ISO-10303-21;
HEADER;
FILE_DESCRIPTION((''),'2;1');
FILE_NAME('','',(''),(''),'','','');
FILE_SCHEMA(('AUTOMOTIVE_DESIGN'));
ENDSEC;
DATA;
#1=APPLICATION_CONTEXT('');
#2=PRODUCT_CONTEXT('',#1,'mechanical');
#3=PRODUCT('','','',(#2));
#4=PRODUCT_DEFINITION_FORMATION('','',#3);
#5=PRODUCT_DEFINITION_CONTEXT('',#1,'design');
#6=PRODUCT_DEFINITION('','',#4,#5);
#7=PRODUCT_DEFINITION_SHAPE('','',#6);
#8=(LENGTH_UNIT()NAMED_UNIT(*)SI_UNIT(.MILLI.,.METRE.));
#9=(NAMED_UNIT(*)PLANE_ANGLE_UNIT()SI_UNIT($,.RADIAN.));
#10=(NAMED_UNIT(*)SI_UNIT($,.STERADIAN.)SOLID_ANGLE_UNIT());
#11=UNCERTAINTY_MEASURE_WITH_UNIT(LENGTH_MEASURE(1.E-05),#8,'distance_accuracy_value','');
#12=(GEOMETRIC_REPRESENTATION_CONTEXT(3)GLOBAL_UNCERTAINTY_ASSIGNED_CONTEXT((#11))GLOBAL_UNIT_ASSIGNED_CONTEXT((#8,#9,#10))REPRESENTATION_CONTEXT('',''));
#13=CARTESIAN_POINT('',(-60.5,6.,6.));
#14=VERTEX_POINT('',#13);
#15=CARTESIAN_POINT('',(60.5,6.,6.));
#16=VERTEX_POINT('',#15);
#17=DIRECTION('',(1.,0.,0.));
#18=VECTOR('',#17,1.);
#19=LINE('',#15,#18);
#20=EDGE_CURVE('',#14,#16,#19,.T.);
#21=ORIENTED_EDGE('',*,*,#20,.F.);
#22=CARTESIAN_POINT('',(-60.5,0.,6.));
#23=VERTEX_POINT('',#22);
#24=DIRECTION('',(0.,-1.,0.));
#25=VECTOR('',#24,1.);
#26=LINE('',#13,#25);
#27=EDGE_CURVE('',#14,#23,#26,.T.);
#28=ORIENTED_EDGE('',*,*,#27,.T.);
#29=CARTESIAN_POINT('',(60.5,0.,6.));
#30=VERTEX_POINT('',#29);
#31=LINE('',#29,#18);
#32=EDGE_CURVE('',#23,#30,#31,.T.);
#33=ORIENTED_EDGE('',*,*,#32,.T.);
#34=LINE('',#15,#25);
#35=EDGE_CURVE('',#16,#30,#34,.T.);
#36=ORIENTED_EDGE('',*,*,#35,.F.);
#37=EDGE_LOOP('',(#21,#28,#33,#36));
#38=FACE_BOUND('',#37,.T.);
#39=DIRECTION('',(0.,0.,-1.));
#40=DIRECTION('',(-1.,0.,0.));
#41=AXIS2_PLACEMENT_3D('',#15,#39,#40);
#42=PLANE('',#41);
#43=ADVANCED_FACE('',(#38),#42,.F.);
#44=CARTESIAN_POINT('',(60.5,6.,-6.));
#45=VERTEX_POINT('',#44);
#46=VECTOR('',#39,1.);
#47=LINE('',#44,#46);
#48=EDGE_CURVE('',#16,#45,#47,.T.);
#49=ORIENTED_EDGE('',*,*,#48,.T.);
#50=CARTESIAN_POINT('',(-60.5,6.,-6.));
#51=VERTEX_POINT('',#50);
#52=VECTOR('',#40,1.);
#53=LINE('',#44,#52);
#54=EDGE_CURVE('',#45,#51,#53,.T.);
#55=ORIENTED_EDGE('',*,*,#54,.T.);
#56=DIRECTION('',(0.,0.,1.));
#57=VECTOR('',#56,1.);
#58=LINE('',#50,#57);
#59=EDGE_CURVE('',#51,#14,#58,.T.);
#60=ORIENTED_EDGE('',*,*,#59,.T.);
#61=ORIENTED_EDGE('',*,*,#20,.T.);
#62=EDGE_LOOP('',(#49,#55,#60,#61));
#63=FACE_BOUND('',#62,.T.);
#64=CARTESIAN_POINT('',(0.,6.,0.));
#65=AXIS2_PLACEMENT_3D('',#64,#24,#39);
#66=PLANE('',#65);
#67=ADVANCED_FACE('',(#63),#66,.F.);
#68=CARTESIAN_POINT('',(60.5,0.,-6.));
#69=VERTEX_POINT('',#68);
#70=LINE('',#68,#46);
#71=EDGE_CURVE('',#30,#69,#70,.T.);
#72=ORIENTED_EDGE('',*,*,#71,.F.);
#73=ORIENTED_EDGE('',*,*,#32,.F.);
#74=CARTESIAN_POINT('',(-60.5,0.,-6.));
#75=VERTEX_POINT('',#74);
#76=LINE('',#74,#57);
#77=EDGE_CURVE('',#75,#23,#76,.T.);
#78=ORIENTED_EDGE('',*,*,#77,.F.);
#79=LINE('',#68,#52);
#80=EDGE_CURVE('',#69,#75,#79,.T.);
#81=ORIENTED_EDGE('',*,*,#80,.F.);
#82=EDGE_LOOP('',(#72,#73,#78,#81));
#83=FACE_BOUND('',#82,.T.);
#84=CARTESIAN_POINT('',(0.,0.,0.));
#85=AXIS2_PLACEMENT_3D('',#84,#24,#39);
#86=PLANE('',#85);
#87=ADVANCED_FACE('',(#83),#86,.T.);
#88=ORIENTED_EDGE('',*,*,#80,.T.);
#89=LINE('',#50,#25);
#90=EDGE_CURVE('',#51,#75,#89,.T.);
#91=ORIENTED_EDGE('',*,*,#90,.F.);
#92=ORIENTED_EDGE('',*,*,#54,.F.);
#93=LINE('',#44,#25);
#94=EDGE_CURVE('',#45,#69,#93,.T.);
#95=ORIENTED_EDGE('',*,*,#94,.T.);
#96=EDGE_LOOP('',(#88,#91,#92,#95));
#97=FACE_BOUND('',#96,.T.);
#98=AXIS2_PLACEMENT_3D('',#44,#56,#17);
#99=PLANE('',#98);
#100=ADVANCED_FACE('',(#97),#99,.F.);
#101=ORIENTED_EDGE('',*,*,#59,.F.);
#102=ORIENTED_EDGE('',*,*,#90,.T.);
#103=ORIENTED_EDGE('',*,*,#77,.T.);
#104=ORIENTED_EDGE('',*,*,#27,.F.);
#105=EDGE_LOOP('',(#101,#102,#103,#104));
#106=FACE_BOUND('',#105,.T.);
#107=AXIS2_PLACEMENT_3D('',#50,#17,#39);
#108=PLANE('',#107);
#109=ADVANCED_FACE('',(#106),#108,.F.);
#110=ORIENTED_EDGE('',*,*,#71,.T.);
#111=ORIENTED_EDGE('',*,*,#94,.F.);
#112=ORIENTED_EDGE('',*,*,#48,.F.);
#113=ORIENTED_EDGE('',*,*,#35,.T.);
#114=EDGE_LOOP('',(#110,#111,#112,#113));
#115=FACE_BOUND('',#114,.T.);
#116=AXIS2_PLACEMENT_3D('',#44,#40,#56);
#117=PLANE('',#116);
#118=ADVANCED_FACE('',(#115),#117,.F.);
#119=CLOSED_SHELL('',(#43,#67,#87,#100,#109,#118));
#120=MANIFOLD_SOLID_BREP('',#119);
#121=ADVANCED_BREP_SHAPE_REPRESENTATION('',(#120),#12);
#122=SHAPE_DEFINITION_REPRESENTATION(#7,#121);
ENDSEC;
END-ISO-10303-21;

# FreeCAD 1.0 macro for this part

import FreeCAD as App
import Part
import Sketcher
Q = App.Units.Quantity

doc = App.newDocument("Part")
params = doc.addObject("Spreadsheet::Sheet", "Params")
for row, (alias, value) in enumerate([
    ("sketch1_width", "121 mm"),
    ("sketch1_height", "12 mm"),
    ("pad1_length", "6 mm"),
], start=1):
    params.set(f"A{row}", alias)
    params.set(f"B{row}", "=" + value)
    params.setAlias(f"B{row}", alias)

body = doc.addObject("PartDesign::Body", "Body")

sketch1 = body.newObject("Sketcher::SketchObject", "Sketch")
sketch1.AttachmentSupport = (doc.getObject("XZ_Plane"), [""])
sketch1.MapMode = "FlatFace"
sketch1.addGeometry([
    Part.LineSegment(App.Vector(-60.5, -6, 0), App.Vector(-60.5, 6, 0)),
    Part.LineSegment(App.Vector(-60.5, 6, 0), App.Vector(60.5, 6, 0)),
    Part.LineSegment(App.Vector(60.5, 6, 0), App.Vector(60.5, -6, 0)),
    Part.LineSegment(App.Vector(60.5, -6, 0), App.Vector(-60.5, -6, 0)),
], False)
sketch1.addConstraint([
    Sketcher.Constraint("Coincident", 0, 2, 1, 1),
    Sketcher.Constraint("Coincident", 1, 2, 2, 1),
    Sketcher.Constraint("Coincident", 2, 2, 3, 1),
    Sketcher.Constraint("Coincident", 3, 2, 0, 1),
    Sketcher.Constraint("Vertical", 0),
    Sketcher.Constraint("Horizontal", 1),
    Sketcher.Constraint("Vertical", 2),
    Sketcher.Constraint("Horizontal", 3),
    Sketcher.Constraint("Symmetric", 0, 2, 2, 2, -1, 1),
    Sketcher.Constraint("DistanceX", 1, 1, 1, 2, Q("121 mm")),
    Sketcher.Constraint("DistanceY", 0, 1, 0, 2, Q("12 mm")),
])
sketch1.setExpression("Constraints[9]", "Params.sketch1_width")
sketch1.setExpression("Constraints[10]", "Params.sketch1_height")
pad1 = body.newObject("PartDesign::Pad", "Pad")
pad1.Profile = sketch1
pad1.setExpression("Length", "Params.pad1_length")
pad1.Reversed = True

doc.recompute()
